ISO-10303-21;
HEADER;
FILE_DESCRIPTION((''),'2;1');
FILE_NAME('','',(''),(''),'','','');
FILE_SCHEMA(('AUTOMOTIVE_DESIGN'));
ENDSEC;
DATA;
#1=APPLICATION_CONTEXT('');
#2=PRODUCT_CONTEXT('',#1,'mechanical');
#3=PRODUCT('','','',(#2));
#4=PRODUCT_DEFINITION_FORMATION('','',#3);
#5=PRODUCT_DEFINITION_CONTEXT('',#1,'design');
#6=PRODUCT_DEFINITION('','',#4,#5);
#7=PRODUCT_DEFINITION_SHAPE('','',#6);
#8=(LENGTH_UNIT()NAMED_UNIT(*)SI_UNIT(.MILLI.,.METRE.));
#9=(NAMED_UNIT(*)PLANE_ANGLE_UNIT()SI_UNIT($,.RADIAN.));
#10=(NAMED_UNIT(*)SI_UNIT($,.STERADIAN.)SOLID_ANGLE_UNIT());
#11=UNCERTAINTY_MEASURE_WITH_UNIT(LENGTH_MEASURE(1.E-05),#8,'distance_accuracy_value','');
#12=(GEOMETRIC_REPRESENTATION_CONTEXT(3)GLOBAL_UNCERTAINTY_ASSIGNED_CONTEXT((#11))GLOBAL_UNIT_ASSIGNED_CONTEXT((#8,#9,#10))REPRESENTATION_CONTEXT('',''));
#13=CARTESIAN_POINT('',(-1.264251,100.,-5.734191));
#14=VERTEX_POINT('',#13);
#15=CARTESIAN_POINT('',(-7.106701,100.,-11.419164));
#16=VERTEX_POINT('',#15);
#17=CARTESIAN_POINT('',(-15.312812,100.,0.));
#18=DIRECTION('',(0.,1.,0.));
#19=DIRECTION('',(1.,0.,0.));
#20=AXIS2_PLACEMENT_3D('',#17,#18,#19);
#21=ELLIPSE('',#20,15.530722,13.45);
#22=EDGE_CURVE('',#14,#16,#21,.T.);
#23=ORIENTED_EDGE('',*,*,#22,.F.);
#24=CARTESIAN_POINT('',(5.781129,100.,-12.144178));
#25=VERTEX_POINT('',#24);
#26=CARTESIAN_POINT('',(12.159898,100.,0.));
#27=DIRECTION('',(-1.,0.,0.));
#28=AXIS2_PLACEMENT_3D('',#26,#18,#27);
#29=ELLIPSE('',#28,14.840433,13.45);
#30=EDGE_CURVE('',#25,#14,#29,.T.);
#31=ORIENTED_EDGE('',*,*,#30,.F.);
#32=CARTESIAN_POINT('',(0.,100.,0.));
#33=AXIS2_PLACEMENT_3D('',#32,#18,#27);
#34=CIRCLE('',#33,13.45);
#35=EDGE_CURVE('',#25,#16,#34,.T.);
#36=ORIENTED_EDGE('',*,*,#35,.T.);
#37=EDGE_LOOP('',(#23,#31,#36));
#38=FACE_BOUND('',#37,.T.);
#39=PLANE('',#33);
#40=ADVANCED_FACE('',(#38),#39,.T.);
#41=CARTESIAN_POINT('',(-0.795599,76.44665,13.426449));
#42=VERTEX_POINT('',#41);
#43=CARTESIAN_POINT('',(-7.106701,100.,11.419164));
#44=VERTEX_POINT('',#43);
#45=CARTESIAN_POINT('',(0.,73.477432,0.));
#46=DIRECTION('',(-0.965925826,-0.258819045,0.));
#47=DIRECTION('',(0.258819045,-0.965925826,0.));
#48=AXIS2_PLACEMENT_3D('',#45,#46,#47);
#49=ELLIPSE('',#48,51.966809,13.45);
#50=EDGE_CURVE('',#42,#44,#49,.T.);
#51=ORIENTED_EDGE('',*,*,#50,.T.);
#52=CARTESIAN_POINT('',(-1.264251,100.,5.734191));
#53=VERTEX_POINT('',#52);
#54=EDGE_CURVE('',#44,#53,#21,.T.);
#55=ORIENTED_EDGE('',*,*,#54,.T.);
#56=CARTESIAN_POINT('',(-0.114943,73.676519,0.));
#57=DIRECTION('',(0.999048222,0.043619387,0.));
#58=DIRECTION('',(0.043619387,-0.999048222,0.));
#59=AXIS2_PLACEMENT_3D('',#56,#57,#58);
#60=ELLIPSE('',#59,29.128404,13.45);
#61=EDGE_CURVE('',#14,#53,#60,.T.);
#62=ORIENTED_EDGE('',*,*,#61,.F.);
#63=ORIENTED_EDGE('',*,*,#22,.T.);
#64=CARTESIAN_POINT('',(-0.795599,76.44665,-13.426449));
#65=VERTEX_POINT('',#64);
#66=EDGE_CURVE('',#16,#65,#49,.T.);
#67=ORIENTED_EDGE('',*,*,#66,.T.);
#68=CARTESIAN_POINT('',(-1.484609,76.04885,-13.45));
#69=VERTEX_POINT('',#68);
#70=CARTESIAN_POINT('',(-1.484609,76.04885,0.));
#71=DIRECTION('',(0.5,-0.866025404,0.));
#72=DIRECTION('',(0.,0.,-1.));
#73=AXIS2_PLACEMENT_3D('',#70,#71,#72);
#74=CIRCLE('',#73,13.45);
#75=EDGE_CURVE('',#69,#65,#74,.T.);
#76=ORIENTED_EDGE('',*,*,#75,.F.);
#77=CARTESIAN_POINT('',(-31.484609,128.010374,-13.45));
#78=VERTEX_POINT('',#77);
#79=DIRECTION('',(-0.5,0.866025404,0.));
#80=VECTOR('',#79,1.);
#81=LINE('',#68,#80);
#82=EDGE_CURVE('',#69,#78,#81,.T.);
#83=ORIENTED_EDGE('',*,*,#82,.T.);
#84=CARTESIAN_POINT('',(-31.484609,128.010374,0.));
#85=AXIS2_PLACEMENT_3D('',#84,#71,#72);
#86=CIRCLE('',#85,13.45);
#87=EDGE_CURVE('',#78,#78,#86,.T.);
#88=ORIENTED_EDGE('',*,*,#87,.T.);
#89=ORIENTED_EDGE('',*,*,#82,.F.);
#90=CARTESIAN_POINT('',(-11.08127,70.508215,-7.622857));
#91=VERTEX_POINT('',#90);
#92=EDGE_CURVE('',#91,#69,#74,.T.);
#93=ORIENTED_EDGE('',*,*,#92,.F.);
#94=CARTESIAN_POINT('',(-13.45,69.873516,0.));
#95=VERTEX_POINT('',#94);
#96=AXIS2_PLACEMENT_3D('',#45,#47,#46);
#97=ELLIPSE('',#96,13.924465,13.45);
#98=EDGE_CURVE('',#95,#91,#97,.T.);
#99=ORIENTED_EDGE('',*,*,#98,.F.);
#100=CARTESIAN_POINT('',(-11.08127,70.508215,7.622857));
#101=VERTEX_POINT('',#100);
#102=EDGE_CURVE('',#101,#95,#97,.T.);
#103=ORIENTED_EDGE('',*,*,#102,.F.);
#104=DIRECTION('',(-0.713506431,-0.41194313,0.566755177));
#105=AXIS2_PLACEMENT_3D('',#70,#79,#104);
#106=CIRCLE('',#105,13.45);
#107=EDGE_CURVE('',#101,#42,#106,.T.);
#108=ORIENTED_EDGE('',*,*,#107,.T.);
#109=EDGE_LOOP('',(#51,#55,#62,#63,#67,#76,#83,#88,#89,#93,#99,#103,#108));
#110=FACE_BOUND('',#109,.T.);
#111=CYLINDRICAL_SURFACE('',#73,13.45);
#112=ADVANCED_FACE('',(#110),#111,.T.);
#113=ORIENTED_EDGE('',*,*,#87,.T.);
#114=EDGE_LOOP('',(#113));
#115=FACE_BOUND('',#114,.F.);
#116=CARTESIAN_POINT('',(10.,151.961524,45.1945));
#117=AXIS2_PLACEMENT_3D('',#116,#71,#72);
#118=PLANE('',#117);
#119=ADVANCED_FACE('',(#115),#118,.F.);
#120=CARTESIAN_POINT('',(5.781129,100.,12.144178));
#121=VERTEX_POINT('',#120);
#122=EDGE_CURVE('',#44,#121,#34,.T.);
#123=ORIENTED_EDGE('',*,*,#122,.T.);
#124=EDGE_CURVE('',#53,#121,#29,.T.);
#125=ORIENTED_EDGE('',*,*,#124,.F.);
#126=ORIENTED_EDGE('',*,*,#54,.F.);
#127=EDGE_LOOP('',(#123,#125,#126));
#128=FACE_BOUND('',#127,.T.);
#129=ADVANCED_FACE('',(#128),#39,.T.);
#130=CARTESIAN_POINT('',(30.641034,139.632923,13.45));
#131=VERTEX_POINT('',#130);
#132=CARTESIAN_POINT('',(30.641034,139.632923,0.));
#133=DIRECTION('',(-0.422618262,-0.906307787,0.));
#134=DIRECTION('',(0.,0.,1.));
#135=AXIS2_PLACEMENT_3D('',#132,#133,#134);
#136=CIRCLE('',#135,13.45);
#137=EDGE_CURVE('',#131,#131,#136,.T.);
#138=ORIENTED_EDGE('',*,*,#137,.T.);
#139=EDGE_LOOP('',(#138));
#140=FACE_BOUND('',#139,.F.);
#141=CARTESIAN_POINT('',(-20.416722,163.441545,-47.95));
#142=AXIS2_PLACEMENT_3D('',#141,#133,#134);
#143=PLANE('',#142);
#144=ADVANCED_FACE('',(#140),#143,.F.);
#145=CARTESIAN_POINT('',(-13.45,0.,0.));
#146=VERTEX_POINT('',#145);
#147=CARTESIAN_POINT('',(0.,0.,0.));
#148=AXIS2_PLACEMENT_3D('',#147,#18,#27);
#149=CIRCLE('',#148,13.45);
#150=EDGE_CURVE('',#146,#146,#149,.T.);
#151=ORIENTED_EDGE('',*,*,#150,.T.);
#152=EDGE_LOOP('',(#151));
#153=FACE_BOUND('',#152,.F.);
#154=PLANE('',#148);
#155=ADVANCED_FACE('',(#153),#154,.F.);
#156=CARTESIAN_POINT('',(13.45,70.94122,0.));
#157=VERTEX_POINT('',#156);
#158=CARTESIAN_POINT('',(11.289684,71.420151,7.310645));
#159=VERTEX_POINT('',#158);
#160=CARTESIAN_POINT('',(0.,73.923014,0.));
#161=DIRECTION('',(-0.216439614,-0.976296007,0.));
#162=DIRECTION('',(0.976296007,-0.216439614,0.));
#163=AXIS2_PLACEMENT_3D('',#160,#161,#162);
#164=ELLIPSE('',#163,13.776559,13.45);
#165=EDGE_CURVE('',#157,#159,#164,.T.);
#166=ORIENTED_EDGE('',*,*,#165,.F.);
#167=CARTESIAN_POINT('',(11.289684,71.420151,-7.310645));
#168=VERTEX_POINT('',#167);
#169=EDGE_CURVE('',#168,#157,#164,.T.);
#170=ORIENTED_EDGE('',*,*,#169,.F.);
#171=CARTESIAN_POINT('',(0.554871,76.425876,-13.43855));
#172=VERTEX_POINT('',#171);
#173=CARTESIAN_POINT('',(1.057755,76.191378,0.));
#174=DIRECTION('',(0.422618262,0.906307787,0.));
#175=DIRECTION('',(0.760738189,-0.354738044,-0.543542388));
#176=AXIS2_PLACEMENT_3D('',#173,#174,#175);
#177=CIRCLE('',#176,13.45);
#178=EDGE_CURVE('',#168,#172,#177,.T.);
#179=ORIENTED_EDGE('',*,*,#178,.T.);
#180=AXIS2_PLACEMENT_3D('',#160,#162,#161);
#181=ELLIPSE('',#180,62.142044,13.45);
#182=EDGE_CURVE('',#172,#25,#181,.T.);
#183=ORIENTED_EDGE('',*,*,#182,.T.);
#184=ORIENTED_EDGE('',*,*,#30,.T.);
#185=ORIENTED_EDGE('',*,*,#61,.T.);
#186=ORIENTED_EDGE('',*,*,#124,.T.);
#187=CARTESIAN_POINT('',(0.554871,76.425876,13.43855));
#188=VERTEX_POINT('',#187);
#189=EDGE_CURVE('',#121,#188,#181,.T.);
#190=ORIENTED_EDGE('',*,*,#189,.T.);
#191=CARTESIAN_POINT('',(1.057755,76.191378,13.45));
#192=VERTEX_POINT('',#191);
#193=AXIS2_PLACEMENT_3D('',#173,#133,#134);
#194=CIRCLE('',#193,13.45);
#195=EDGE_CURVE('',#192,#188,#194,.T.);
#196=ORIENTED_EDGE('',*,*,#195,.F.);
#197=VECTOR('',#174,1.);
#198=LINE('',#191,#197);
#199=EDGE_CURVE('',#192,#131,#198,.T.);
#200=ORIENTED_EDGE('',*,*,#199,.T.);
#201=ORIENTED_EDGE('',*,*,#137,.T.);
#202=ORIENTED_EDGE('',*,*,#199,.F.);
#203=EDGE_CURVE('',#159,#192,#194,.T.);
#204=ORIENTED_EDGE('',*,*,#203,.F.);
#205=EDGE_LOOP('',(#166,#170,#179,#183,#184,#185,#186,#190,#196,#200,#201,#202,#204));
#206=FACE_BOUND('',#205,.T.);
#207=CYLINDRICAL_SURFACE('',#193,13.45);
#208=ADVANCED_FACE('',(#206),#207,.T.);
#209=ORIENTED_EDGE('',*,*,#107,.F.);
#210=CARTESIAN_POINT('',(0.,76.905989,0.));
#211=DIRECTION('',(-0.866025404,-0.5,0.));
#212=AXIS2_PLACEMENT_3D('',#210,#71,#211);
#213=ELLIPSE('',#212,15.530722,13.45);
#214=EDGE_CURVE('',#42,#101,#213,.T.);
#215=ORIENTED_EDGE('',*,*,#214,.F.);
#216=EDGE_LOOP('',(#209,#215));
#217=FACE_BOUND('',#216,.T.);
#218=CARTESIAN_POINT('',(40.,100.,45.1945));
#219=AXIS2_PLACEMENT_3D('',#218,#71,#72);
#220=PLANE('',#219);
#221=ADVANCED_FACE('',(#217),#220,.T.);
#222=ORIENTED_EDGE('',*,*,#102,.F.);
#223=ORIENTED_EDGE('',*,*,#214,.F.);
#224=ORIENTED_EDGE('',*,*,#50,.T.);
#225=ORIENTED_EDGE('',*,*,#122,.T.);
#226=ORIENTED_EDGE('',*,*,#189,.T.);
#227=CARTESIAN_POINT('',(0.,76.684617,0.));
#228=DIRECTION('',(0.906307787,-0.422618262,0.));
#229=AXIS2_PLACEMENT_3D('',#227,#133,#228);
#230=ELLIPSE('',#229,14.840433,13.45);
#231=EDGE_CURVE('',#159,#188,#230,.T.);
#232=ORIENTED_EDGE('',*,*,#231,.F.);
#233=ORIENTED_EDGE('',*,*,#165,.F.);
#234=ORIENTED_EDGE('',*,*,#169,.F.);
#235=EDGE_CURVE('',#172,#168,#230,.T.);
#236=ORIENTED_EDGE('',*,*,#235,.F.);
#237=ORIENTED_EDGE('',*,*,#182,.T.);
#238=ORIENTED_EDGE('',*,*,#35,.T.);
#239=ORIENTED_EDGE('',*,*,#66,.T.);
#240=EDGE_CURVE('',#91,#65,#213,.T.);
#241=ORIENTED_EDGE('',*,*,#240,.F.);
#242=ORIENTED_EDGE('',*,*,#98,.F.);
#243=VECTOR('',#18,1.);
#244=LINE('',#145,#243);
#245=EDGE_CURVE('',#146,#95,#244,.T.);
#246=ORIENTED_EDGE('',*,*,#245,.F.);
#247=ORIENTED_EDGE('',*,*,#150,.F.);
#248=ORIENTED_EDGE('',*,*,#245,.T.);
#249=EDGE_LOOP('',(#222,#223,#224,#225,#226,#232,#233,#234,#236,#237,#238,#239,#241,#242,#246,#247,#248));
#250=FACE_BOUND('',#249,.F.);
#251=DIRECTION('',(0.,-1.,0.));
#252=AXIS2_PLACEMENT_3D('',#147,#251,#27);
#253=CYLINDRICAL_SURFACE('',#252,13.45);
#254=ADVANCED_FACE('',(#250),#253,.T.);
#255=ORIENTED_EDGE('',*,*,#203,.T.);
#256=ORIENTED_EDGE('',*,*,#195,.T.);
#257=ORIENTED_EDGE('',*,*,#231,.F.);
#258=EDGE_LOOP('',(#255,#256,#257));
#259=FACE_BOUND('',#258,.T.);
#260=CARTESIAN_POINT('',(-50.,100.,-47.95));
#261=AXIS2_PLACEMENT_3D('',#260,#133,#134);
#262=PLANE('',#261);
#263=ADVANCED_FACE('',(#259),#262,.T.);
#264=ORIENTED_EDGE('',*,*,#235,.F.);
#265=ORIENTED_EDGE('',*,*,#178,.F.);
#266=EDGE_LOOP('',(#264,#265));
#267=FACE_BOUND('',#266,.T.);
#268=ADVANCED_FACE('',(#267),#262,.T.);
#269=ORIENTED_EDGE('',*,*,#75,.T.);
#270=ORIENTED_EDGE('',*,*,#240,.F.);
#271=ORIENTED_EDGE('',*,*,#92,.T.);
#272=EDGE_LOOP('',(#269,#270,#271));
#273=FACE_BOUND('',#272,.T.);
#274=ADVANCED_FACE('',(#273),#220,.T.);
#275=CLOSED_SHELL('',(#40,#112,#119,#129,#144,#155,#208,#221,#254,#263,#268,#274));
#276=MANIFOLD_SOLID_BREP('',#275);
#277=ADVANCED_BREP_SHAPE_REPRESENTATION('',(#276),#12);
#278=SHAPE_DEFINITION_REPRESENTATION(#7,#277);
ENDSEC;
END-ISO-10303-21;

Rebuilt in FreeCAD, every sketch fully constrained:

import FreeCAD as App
import Part
import Sketcher

doc = App.newDocument("Part")
params = doc.addObject("Spreadsheet::Sheet", "Params")
for row, (alias, value) in enumerate([
    ("sketch1_diameter", "26.9 mm"),
    ("pad1_length", "100 mm"),
    ("sketch2_diameter", "26.9 mm"),
    ("pad2_length", "60 mm"),
    ("sketch3_diameter", "26.9 mm"),
    ("pad3_length", "70 mm"),
], start=1):
    params.set(f"A{row}", alias)
    params.set(f"B{row}", "=" + value)
    params.setAlias(f"B{row}", alias)

body = doc.addObject("PartDesign::Body", "Body")

sketch1 = body.newObject("Sketcher::SketchObject", "Sketch")
sketch1.AttachmentSupport = (doc.getObject("XZ_Plane"), [""])
sketch1.MapMode = "FlatFace"
sketch1.addGeometry(Part.Circle(App.Vector(0, 0, 0), App.Vector(0, 0, 1), 13), False)
sketch1.addConstraint([
    Sketcher.Constraint("Coincident", 0, 3, -1, 1),
    Sketcher.Constraint("Diameter", 0, 26.9),
])
sketch1.setExpression("Constraints[1]", "Params.sketch1_diameter")
pad1 = body.newObject("PartDesign::Pad", "Pad")
pad1.Profile = sketch1
pad1.setExpression("Length", "Params.pad1_length")
pad1.Reversed = True

sketch2 = body.newObject("Sketcher::SketchObject", "Sketch001")
sketch2.Placement = App.Placement(App.Vector(40, 100, 45.1945), App.Rotation(App.Vector(0, 0, -1), App.Vector(0.866025404, 0.5, 0), App.Vector(0.5, -0.866025404, 0), "ZXY"))
sketch2.addGeometry(Part.Circle(App.Vector(45, -48, 0), App.Vector(0, 0, 1), 13), False)
sketch2.addConstraint([
    Sketcher.Constraint("Diameter", 0, 26.9),
    Sketcher.Constraint("DistanceX", -1, 1, 0, 3, 45.1945),
    Sketcher.Constraint("DistanceY", 0, 3, -1, 1, 47.9023),
])
sketch2.setExpression("Constraints[0]", "Params.sketch2_diameter")
pad2 = body.newObject("PartDesign::Pad", "Pad001")
pad2.Profile = sketch2
pad2.setExpression("Length", "Params.pad2_length")
pad2.Reversed = True

sketch3 = body.newObject("Sketcher::SketchObject", "Sketch002")
sketch3.Placement = App.Placement(App.Vector(-50, 100, -47.95), App.Rotation(App.Vector(0, 0, 1), App.Vector(-0.906307787, 0.422618262, 0), App.Vector(-0.422618262, -0.906307787, 0), "ZXY"))
sketch3.addGeometry(Part.Circle(App.Vector(48, -56, 0), App.Vector(0, 0, 1), 13), False)
sketch3.addConstraint([
    Sketcher.Constraint("Diameter", 0, 26.9),
    Sketcher.Constraint("DistanceX", -1, 1, 0, 3, 47.95),
    Sketcher.Constraint("DistanceY", 0, 3, -1, 1, 56.336),
])
sketch3.setExpression("Constraints[0]", "Params.sketch3_diameter")
pad3 = body.newObject("PartDesign::Pad", "Pad002")
pad3.Profile = sketch3
pad3.setExpression("Length", "Params.pad3_length")
pad3.Reversed = True

doc.recompute()
